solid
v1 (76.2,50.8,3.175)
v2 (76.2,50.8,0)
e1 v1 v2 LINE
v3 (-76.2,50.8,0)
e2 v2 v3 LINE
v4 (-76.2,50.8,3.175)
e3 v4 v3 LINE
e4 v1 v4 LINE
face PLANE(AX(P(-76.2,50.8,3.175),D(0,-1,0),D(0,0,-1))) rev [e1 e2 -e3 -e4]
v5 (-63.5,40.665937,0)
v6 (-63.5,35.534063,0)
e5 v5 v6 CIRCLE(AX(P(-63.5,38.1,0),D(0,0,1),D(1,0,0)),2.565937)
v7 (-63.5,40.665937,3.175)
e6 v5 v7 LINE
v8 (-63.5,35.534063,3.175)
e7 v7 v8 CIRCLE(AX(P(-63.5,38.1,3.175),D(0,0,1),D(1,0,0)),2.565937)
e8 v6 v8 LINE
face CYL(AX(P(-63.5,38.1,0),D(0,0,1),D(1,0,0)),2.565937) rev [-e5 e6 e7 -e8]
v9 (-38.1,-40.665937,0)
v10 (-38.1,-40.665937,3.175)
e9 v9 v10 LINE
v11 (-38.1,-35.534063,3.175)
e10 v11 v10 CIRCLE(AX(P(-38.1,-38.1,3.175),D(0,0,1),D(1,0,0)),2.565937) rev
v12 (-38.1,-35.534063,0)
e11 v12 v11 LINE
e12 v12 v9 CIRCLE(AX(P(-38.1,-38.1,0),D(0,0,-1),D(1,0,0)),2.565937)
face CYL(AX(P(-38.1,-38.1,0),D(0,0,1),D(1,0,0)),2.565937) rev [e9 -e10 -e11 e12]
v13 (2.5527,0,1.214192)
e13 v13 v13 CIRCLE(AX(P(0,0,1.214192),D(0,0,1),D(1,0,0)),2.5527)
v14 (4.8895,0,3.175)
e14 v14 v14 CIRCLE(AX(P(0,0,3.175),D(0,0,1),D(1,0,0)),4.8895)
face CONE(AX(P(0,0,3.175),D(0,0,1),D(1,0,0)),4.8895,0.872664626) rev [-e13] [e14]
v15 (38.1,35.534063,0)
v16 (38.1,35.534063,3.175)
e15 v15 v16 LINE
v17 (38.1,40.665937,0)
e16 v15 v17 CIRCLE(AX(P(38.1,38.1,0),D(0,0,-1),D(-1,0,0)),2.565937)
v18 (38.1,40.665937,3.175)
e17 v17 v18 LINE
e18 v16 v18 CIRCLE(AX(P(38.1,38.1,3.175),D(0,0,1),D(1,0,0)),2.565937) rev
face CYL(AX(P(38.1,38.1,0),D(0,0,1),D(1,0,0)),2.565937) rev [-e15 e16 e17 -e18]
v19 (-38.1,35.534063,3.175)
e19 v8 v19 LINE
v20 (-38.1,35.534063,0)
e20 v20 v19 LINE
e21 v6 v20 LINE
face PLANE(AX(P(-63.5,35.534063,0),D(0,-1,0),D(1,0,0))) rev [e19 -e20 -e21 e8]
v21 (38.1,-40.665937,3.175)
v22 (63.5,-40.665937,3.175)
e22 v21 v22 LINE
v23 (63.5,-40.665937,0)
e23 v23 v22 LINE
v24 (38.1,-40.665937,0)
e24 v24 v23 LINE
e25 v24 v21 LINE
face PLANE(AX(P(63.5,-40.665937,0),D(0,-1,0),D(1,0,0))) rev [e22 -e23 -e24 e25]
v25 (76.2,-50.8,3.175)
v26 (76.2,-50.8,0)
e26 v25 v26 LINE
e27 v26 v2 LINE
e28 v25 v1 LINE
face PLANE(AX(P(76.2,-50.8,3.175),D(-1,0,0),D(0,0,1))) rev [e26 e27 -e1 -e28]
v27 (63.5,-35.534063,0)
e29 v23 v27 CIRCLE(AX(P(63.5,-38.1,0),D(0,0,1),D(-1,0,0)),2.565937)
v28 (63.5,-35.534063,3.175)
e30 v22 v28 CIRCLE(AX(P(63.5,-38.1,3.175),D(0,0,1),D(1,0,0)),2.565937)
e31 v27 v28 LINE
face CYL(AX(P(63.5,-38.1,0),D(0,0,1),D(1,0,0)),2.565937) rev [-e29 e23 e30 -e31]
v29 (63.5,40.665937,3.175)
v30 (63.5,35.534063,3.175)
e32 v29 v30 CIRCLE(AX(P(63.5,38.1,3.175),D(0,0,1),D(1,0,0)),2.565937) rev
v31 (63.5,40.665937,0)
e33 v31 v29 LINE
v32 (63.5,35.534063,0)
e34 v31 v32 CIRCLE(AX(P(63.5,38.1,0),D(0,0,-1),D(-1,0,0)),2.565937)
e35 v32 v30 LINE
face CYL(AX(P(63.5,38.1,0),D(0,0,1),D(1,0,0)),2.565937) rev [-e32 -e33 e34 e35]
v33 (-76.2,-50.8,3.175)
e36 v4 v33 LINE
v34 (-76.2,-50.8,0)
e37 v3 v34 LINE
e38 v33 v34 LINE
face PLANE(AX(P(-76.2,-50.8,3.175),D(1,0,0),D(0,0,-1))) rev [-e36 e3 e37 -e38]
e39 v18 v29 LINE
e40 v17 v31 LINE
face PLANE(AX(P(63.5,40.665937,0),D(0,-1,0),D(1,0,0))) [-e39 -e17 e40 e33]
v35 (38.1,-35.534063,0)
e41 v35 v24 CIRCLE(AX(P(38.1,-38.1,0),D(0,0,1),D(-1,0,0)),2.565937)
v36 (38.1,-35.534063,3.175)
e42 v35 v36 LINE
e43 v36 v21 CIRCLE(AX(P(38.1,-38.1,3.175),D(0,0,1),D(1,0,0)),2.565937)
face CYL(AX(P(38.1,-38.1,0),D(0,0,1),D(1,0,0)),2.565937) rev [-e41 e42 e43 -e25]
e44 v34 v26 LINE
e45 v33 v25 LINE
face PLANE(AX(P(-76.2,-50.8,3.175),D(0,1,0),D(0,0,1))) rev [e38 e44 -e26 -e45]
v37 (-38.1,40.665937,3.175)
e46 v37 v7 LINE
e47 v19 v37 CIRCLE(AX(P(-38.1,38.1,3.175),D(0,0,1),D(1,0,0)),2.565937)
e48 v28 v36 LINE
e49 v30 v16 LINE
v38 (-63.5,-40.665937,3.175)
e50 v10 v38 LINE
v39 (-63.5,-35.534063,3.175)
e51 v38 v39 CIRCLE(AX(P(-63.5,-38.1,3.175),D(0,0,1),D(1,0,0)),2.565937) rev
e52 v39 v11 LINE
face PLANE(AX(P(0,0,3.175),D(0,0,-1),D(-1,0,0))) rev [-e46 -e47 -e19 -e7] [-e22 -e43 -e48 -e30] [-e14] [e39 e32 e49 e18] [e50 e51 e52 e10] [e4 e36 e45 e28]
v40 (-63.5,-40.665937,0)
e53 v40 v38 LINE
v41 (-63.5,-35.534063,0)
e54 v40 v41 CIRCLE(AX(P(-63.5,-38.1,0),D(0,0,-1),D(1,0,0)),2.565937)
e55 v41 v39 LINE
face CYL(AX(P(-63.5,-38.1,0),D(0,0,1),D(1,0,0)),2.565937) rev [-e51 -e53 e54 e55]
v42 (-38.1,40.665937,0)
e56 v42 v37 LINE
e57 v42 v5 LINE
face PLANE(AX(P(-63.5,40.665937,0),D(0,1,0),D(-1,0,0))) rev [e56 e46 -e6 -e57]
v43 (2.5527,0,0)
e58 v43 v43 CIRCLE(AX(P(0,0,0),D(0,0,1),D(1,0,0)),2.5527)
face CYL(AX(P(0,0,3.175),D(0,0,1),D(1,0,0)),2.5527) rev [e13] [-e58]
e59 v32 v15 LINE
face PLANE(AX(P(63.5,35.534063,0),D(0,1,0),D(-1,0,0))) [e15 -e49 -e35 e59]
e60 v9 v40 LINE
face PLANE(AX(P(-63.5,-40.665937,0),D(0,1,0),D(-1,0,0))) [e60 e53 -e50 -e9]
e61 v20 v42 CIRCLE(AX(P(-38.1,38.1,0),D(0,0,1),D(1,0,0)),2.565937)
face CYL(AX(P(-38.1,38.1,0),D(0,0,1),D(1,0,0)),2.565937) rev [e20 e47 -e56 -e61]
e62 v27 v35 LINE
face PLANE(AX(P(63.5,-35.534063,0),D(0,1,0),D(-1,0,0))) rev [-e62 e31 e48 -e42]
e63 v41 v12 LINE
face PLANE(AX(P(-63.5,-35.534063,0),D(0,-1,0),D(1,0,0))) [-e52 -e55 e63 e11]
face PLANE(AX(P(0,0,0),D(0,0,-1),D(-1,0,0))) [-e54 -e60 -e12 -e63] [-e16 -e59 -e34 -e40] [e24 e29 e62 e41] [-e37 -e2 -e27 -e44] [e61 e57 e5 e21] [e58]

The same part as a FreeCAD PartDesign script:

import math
import FreeCAD as App
import Part
import Sketcher
Q = App.Units.Quantity


def add_polygon(sketch, points):
    """Adds a closed chain of lines whose ends are joined by coincident constraints."""
    first, n = sketch.GeometryCount, len(points)
    for a, b in zip(points, points[1:] + points[:1]):
        sketch.addGeometry(Part.LineSegment(App.Vector(*a, 0), App.Vector(*b, 0)), False)
    for i in range(n):
        sketch.addConstraint(Sketcher.Constraint("Coincident", first + i, 2, first + (i + 1) % n, 1))

doc = App.newDocument("Part")
params = doc.addObject("Spreadsheet::Sheet", "Params")
for row, (alias, value) in enumerate([
    ("sketch1_width", "6 in"),
    ("sketch1_height", "4 in"),
    ("pad1_length", "0.125 in"),
    ("sketch2_width", "1 in"),
    ("pocket1_length", "185.272045 mm"),
    ("sketch3_width", "1 in"),
    ("pocket2_length", "185.272045 mm"),
    ("sketch4_height", "0.125 in"),
    ("groove_angle", "360 deg"),
], start=1):
    params.set(f"A{row}", alias)
    params.set(f"B{row}", "=" + value)
    params.setAlias(f"B{row}", alias)

body = doc.addObject("PartDesign::Body", "Body")

# Sketch on XY plane
sketch1 = doc.addObject("Sketcher::SketchObject", "Sketch")
body.addObject(sketch1)
sketch1.AttachmentSupport = (doc.XY_Plane, [""])
sketch1.MapMode = "FlatFace"
add_polygon(sketch1, [(-76.2, 50.8), (-76.2, -50.8), (76.2, -50.8), (76.2, 50.8)])  # lines 0-3
sketch1.addConstraint([
    Sketcher.Constraint("Vertical", 0),
    Sketcher.Constraint("Horizontal", 1),
    Sketcher.Constraint("Vertical", 2),
    Sketcher.Constraint("Horizontal", 3),
    Sketcher.Constraint("Symmetric", 0, 2, 2, 2, -1, 1),
    Sketcher.Constraint("DistanceX", 1, 1, 1, 2, Q("6 in")),
    Sketcher.Constraint("DistanceY", 0, 2, 0, 1, Q("4 in")),
])
sketch1.setExpression("Constraints[9]", "Params.sketch1_width")
sketch1.setExpression("Constraints[10]", "Params.sketch1_height")
pad1 = doc.addObject("PartDesign::Pad", "Pad")
body.addObject(pad1)
pad1.Profile = sketch1
pad1.setExpression("Length", "Params.pad1_length")

# Sketch on XY plane
sketch2 = doc.addObject("Sketcher::SketchObject", "Sketch001")
body.addObject(sketch2)
sketch2.AttachmentSupport = (doc.XY_Plane, [""])
sketch2.MapMode = "FlatFace"
sketch2.AttachmentOffset = App.Placement(App.Vector(0, 0, 0.125 * 25.4), App.Rotation())
sketch2.addGeometry([
    Part.LineSegment(App.Vector(-38.1, 40.665937, 0), App.Vector(-63.5, 40.665937, 0)),
    Part.ArcOfCircle(Part.Circle(App.Vector(-63.5, 38.1, 0), App.Vector(0, 0, 1), 2.565937), math.radians(90), math.radians(270)),
    Part.LineSegment(App.Vector(-63.5, 35.534063, 0), App.Vector(-38.1, 35.534063, 0)),
    Part.ArcOfCircle(Part.Circle(App.Vector(-38.1, 38.1, 0), App.Vector(0, 0, 1), 2.565937), math.radians(-90), math.radians(90)),
], False)
sketch2.addConstraint([
    Sketcher.Constraint("Tangent", 0, 2, 1, 1),
    Sketcher.Constraint("Tangent", 1, 2, 2, 1),
    Sketcher.Constraint("Tangent", 2, 2, 3, 1),
    Sketcher.Constraint("Tangent", 3, 2, 0, 1),
    Sketcher.Constraint("Horizontal", 0),
    Sketcher.Constraint("Horizontal", 2),
    Sketcher.Constraint("DistanceX", 0, 2, 0, 1, Q("1 in")),
    Sketcher.Constraint("DistanceX", 1, 3, -1, 1, Q("2.5 in")),
    Sketcher.Constraint("DistanceY", -1, 1, 1, 3, Q("1.5 in")),
    Sketcher.Constraint("Radius", 1, Q("2.565937 mm")),
])
sketch2.setExpression("Constraints[6]", "Params.sketch2_width")
pocket1 = doc.addObject("PartDesign::Pocket", "Pocket")
body.addObject(pocket1)
pocket1.Profile = sketch2
pocket1.setExpression("Length", "Params.pocket1_length")
pocket1.Midplane = True
doc.recompute()

mirrored = doc.addObject("PartDesign::Mirrored", "Mirrored")
body.addObject(mirrored)
mirrored.Originals = [pocket1]
mirrored.MirrorPlane = (doc.YZ_Plane, [""])
body.Tip = mirrored
doc.recompute()

mirrored2 = doc.addObject("PartDesign::Mirrored", "Mirrored001")
body.addObject(mirrored2)
mirrored2.Originals = [pocket1]
mirrored2.MirrorPlane = (doc.XZ_Plane, [""])
body.Tip = mirrored2

# Sketch on XY plane
sketch3 = doc.addObject("Sketcher::SketchObject", "Sketch002")
body.addObject(sketch3)
sketch3.AttachmentSupport = (doc.XY_Plane, [""])
sketch3.MapMode = "FlatFace"
sketch3.AttachmentOffset = App.Placement(App.Vector(0, 0, 0.125 * 25.4), App.Rotation())
sketch3.addGeometry([
    Part.LineSegment(App.Vector(38.1, -40.665937, 0), App.Vector(63.5, -40.665937, 0)),
    Part.ArcOfCircle(Part.Circle(App.Vector(63.5, -38.1, 0), App.Vector(0, 0, 1), 2.565937), math.radians(-90), math.radians(90)),
    Part.LineSegment(App.Vector(63.5, -35.534063, 0), App.Vector(38.1, -35.534063, 0)),
    Part.ArcOfCircle(Part.Circle(App.Vector(38.1, -38.1, 0), App.Vector(0, 0, 1), 2.565937), math.radians(90), math.radians(270)),
], False)
sketch3.addConstraint([
    Sketcher.Constraint("Tangent", 0, 2, 1, 1),
    Sketcher.Constraint("Tangent", 1, 2, 2, 1),
    Sketcher.Constraint("Tangent", 2, 2, 3, 1),
    Sketcher.Constraint("Tangent", 3, 2, 0, 1),
    Sketcher.Constraint("Horizontal", 0),
    Sketcher.Constraint("Horizontal", 2),
    Sketcher.Constraint("DistanceX", 0, 1, 0, 2, Q("1 in")),
    Sketcher.Constraint("DistanceX", -1, 1, 1, 3, Q("2.5 in")),
    Sketcher.Constraint("DistanceY", 1, 3, -1, 1, Q("1.5 in")),
    Sketcher.Constraint("Radius", 1, Q("2.565937 mm")),
])
sketch3.setExpression("Constraints[6]", "Params.sketch3_width")
pocket2 = doc.addObject("PartDesign::Pocket", "Pocket001")
body.addObject(pocket2)
pocket2.Profile = sketch3
pocket2.setExpression("Length", "Params.pocket2_length")
pocket2.Midplane = True

# Sketch on YZ plane
sketch4 = doc.addObject("Sketcher::SketchObject", "Sketch003")
body.addObject(sketch4)
sketch4.AttachmentSupport = (doc.YZ_Plane, [""])
sketch4.MapMode = "FlatFace"
add_polygon(sketch4, [(0, 0), (0, 3.175), (-4.8895, 3.175), (-2.5527, 1.214192), (-2.5527, 0)])  # lines 0-4
sketch4.addConstraint([
    Sketcher.Constraint("Vertical", 0),
    Sketcher.Constraint("Horizontal", 1),
    Sketcher.Constraint("Vertical", 3),
    Sketcher.Constraint("Horizontal", 4),
    Sketcher.Constraint("Coincident", 4, 2, -1, 1),
    Sketcher.Constraint("Angle", 2, Q("-40 deg")),
    Sketcher.Constraint("DistanceY", 0, 1, 0, 2, Q("0.125 in")),
    Sketcher.Constraint("DistanceX", 1, 2, 1, 1, Q("0.1925 in")),
    Sketcher.Constraint("DistanceX", 4, 1, 4, 2, Q("0.1005 in")),
])
sketch4.setExpression("Constraints[11]", "Params.sketch4_height")
groove = doc.addObject("PartDesign::Groove", "Groove")
body.addObject(groove)
groove.Profile = sketch4
groove.ReferenceAxis = (sketch4, ["V_Axis"])
groove.setExpression("Angle", "Params.groove_angle")

doc.recompute()
